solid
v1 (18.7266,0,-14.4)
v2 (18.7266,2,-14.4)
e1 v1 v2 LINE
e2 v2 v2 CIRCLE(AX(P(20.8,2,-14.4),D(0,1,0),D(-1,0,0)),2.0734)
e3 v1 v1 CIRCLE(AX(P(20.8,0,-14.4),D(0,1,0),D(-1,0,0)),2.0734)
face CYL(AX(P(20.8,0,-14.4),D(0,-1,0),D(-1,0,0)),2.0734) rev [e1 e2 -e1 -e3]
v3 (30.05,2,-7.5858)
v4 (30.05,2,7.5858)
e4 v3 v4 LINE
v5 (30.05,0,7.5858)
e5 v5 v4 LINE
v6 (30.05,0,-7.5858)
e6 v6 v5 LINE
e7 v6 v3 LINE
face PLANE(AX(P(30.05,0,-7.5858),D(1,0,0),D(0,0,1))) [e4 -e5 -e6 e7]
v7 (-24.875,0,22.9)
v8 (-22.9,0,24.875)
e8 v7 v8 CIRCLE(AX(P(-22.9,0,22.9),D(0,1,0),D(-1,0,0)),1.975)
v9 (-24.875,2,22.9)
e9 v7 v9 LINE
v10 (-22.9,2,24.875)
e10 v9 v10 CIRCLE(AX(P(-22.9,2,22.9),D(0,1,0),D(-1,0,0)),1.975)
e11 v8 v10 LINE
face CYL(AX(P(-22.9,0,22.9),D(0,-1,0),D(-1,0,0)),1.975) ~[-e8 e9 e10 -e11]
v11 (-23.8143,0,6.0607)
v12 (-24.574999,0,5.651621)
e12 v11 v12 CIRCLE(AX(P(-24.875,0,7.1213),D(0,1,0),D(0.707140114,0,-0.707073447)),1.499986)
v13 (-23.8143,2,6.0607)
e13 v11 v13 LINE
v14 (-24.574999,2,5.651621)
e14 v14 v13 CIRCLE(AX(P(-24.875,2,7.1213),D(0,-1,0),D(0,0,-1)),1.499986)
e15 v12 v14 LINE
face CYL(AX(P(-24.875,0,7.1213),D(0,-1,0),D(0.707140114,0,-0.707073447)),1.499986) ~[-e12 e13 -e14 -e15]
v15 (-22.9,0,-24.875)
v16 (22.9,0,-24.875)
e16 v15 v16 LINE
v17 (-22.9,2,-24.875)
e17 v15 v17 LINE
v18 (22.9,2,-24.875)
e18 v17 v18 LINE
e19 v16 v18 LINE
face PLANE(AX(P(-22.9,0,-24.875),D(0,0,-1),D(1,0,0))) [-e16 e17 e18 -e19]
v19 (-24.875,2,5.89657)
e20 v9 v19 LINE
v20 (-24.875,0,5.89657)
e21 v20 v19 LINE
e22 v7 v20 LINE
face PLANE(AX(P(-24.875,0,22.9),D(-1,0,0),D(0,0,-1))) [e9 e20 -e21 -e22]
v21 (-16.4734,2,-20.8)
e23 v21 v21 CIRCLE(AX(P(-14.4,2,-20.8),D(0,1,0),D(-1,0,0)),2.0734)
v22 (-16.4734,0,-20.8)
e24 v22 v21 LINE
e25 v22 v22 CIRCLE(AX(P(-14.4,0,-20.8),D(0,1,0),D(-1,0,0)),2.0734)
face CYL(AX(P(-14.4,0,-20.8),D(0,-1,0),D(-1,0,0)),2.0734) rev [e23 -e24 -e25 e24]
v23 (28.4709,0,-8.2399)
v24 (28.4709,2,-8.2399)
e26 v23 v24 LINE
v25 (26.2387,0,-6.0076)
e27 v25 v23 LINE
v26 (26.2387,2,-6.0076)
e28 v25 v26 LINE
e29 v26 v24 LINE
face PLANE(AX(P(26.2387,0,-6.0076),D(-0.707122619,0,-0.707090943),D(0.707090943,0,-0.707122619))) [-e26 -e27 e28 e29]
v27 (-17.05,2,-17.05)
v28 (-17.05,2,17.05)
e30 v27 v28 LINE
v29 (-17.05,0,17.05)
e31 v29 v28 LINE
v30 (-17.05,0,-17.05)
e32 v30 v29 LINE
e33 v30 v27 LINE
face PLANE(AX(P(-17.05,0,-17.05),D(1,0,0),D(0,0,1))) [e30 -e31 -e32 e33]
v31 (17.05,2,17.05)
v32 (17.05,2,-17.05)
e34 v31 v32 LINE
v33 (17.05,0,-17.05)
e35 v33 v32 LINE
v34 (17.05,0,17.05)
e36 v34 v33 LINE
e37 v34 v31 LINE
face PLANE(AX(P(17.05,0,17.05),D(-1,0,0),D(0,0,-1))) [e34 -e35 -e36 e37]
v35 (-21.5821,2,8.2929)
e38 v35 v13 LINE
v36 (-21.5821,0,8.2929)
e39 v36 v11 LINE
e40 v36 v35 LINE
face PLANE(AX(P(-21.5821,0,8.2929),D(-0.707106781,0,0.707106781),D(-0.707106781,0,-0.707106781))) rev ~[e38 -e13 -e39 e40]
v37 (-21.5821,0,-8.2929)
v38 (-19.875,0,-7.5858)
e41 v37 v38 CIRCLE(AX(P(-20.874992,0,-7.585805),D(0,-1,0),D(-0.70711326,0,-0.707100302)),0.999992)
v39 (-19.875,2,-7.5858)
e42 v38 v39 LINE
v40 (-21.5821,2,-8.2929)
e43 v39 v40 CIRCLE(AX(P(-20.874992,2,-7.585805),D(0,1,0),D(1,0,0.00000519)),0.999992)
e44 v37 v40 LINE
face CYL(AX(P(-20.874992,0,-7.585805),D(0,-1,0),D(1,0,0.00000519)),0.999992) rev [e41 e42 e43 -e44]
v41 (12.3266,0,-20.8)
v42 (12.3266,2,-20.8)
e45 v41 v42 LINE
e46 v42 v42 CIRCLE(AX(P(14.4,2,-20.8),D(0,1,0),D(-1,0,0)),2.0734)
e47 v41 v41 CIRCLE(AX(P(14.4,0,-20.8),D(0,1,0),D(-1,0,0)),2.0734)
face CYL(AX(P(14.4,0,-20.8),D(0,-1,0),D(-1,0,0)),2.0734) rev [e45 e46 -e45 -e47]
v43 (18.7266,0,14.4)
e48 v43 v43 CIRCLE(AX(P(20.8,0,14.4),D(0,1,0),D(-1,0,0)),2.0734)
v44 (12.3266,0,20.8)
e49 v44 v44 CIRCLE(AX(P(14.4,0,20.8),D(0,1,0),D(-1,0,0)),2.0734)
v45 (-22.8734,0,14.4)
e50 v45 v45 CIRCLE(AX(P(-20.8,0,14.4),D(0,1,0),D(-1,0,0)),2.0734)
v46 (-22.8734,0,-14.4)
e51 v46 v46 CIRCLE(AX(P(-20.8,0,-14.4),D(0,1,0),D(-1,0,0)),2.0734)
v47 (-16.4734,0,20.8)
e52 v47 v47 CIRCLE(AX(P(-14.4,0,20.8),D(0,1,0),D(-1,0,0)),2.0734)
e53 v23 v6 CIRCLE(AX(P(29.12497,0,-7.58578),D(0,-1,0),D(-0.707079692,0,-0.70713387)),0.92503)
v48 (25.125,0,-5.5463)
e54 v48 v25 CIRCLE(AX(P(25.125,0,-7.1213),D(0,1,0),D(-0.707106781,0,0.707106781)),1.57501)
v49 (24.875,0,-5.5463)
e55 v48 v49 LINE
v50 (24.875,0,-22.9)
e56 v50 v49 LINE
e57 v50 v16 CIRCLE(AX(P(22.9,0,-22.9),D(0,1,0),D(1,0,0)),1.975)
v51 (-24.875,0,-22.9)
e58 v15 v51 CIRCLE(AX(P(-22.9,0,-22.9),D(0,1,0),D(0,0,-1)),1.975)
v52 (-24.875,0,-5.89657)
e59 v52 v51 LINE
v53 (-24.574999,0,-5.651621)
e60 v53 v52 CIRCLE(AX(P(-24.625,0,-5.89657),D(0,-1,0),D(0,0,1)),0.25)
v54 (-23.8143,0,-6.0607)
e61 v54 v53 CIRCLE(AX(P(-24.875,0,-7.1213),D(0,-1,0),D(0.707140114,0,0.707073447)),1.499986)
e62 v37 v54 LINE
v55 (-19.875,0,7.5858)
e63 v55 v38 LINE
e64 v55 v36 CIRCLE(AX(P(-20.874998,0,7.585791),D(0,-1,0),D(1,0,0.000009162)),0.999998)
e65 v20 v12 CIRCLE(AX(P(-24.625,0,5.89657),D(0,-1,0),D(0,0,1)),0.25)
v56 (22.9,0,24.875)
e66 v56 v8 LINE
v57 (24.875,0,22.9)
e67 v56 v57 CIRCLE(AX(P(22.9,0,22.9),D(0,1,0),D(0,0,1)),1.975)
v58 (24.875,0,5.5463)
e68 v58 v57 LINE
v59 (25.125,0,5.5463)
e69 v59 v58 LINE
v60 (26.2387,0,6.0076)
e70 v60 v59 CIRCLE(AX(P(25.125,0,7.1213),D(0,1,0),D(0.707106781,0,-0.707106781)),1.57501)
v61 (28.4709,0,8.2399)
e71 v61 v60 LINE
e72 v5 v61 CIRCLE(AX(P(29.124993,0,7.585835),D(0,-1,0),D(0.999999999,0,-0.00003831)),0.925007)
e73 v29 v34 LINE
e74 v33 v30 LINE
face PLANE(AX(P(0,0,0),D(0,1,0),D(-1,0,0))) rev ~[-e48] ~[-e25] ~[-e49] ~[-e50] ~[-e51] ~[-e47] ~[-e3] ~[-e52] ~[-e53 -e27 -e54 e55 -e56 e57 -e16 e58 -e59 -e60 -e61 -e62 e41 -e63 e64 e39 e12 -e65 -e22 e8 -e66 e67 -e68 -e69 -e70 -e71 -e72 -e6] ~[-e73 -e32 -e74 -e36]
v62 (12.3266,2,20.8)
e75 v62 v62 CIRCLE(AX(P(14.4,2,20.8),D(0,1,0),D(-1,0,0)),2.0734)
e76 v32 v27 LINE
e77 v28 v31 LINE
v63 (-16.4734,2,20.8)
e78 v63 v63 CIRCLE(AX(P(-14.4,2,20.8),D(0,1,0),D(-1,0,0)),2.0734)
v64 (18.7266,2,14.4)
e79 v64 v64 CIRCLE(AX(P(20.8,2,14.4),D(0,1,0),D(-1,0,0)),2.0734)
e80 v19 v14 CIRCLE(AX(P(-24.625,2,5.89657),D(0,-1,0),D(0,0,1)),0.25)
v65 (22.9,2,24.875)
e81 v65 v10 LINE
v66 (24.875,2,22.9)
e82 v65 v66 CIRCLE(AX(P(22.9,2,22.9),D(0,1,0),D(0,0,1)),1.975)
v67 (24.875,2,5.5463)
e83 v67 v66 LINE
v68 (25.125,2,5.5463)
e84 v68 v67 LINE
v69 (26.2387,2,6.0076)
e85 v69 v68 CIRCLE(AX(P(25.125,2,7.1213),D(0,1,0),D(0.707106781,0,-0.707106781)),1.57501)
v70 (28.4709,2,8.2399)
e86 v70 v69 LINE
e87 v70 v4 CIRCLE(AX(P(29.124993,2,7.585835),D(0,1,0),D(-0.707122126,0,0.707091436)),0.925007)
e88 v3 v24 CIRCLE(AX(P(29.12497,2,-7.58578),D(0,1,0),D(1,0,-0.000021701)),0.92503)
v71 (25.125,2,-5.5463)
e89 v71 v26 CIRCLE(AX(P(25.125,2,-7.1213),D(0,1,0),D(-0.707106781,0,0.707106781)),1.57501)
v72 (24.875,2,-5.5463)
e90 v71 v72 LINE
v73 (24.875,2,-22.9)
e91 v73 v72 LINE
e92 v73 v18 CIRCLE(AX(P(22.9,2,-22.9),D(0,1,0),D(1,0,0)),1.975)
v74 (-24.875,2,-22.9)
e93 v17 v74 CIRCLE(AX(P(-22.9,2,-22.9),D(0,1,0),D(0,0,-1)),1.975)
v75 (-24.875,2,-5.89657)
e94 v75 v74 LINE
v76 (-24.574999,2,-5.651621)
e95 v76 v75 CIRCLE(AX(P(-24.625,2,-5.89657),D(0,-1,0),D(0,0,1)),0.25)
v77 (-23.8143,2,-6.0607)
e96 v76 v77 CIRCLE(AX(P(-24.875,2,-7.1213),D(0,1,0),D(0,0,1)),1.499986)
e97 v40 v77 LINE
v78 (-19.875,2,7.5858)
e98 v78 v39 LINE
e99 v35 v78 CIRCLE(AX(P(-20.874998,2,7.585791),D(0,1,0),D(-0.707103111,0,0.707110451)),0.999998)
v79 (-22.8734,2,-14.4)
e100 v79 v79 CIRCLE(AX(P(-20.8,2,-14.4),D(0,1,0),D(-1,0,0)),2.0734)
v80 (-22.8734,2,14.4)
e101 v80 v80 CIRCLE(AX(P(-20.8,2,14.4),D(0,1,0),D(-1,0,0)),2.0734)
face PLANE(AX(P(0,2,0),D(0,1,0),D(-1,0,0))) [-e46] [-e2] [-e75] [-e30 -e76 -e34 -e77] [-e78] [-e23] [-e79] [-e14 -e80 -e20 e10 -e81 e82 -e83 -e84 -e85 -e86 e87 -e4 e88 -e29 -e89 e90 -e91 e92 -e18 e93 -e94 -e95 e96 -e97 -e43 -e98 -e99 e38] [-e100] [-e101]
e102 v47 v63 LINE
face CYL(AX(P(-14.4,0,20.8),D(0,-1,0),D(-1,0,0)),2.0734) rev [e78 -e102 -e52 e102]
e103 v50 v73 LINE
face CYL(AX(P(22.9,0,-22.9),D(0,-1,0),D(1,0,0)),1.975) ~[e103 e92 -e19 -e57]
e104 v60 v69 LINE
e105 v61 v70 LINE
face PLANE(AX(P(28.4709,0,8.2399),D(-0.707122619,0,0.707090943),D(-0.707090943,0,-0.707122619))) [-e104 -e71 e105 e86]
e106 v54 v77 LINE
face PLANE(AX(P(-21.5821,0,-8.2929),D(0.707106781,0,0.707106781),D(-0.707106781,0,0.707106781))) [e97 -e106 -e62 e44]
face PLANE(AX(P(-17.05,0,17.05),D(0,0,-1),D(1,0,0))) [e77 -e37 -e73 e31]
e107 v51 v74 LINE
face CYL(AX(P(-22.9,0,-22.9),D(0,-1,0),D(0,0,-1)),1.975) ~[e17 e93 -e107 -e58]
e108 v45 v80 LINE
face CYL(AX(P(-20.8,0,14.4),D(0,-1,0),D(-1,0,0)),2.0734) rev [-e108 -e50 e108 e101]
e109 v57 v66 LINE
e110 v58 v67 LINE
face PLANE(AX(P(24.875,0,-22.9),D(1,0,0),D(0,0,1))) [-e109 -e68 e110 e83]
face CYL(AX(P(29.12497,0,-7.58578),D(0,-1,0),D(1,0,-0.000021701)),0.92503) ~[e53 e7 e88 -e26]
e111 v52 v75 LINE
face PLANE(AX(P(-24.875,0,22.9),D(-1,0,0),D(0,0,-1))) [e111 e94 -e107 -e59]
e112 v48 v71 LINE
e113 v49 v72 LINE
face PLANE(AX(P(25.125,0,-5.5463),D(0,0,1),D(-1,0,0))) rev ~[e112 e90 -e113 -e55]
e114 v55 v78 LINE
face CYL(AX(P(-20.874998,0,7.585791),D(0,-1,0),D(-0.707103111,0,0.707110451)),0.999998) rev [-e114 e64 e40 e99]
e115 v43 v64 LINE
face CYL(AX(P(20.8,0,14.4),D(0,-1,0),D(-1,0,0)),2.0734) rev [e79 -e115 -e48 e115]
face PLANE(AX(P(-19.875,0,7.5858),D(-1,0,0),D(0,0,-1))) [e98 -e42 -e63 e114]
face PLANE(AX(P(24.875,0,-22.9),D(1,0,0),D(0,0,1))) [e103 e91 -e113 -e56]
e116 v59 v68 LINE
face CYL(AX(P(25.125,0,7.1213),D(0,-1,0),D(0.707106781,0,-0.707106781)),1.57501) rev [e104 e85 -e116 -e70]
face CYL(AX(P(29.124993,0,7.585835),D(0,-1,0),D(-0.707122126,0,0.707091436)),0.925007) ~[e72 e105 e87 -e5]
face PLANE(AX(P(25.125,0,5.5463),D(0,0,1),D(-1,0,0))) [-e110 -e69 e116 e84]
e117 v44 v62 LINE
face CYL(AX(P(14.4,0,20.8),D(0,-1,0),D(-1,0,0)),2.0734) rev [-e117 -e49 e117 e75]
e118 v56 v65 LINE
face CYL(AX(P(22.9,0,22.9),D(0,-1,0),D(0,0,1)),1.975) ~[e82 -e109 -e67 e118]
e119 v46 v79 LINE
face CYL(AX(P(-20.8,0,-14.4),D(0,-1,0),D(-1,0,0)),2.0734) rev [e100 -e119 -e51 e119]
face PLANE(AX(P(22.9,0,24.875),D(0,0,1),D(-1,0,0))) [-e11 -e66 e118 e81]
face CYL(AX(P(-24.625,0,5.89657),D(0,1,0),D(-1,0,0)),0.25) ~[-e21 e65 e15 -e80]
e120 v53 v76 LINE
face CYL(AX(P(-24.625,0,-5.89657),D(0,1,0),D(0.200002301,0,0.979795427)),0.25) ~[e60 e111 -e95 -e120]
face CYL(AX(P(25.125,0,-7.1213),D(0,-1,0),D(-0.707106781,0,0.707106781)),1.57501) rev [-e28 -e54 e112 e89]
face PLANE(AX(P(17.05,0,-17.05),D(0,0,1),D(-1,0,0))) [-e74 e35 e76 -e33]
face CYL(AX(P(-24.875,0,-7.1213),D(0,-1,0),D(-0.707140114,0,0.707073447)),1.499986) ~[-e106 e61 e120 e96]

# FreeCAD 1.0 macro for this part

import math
import FreeCAD as App
import Part
import Sketcher
from FreeCAD import Vector


def edges_at(feature, points):
    """Names of the edges that pass closest to the given points."""
    edges = feature.Shape.Edges
    near = lambda p: min(range(len(edges)), key=lambda i: edges[i].distToShape(Part.Vertex(*p))[0])
    return sorted({f"Edge{near(p) + 1}" for p in points})

doc = App.newDocument("Part")
body = doc.addObject("PartDesign::Body", "Body")

sketch1 = body.newObject("Sketcher::SketchObject", "Sketch")
sketch1.AttachmentSupport = (doc.getObject("XZ_Plane"), [""])
sketch1.MapMode = "FlatFace"
sketch1.addGeometry(Part.LineSegment(Vector(-22.9, 24.9, 0), Vector(22.9, 24.9, 0)), False)
sketch1.addGeometry(Part.ArcOfCircle(Part.Circle(Vector(22.9, 22.9, 0), Vector(0, 0, 1), 2), math.radians(0), math.radians(90)), False)
sketch1.addGeometry(Part.LineSegment(Vector(24.9, 22.9, 0), Vector(24.9, -22.9, 0)), False)
sketch1.addGeometry(Part.ArcOfCircle(Part.Circle(Vector(22.9, -22.9, 0), Vector(0, 0, 1), 2), math.radians(-90), math.radians(0)), False)
sketch1.addGeometry(Part.LineSegment(Vector(22.9, -24.9, 0), Vector(-22.9, -24.9, 0)), False)
sketch1.addGeometry(Part.ArcOfCircle(Part.Circle(Vector(-22.9, -22.9, 0), Vector(0, 0, 1), 2), math.radians(180), math.radians(270)), False)
sketch1.addGeometry(Part.LineSegment(Vector(-24.9, -22.9, 0), Vector(-24.9, 22.9, 0)), False)
sketch1.addGeometry(Part.ArcOfCircle(Part.Circle(Vector(-22.9, 22.9, 0), Vector(0, 0, 1), 2), math.radians(90), math.radians(180)), False)
sketch1.addGeometry(Part.Circle(Vector(14.4, -20.8, 0), Vector(0, 0, 1), 2.1), False)
sketch1.addGeometry(Part.Circle(Vector(20.8, -14.4, 0), Vector(0, 0, 1), 2.1), False)
sketch1.addGeometry(Part.LineSegment(Vector(17.1, -17.1, 0), Vector(17.1, 17.1, 0)), False)
sketch1.addGeometry(Part.LineSegment(Vector(17.1, 17.1, 0), Vector(-17.1, 17.1, 0)), False)
sketch1.addGeometry(Part.LineSegment(Vector(-17.1, 17.1, 0), Vector(-17.1, -17.1, 0)), False)
sketch1.addGeometry(Part.LineSegment(Vector(-17.1, -17.1, 0), Vector(17.1, -17.1, 0)), False)
sketch1.addGeometry(Part.Circle(Vector(-14.4, -20.8, 0), Vector(0, 0, 1), 2.1), False)
sketch1.addGeometry(Part.Circle(Vector(-20.8, -14.4, 0), Vector(0, 0, 1), 2.1), False)
sketch1.addGeometry(Part.Circle(Vector(20.8, 14.4, 0), Vector(0, 0, 1), 2.1), False)
sketch1.addGeometry(Part.Circle(Vector(14.4, 20.8, 0), Vector(0, 0, 1), 2.1), False)
sketch1.addGeometry(Part.Circle(Vector(-20.8, 14.4, 0), Vector(0, 0, 1), 2.1), False)
sketch1.addGeometry(Part.Circle(Vector(-14.4, 20.8, 0), Vector(0, 0, 1), 2.1), False)
sketch1.addConstraint(Sketcher.Constraint("Tangent", 0, 2, 1, 2))
sketch1.addConstraint(Sketcher.Constraint("Tangent", 1, 1, 2, 1))
sketch1.addConstraint(Sketcher.Constraint("Tangent", 2, 2, 3, 2))
sketch1.addConstraint(Sketcher.Constraint("Tangent", 3, 1, 4, 1))
sketch1.addConstraint(Sketcher.Constraint("Tangent", 4, 2, 5, 2))
sketch1.addConstraint(Sketcher.Constraint("Tangent", 5, 1, 6, 1))
sketch1.addConstraint(Sketcher.Constraint("Tangent", 6, 2, 7, 2))
sketch1.addConstraint(Sketcher.Constraint("Tangent", 7, 1, 0, 1))
sketch1.addConstraint(Sketcher.Constraint("Coincident", 10, 2, 11, 1))
sketch1.addConstraint(Sketcher.Constraint("Coincident", 11, 2, 12, 1))
sketch1.addConstraint(Sketcher.Constraint("Coincident", 12, 2, 13, 1))
sketch1.addConstraint(Sketcher.Constraint("Coincident", 13, 2, 10, 1))
sketch1.addConstraint(Sketcher.Constraint("Horizontal", 0))
sketch1.addConstraint(Sketcher.Constraint("Vertical", 2))
sketch1.addConstraint(Sketcher.Constraint("Horizontal", 4))
sketch1.addConstraint(Sketcher.Constraint("Vertical", 6))
sketch1.addConstraint(Sketcher.Constraint("Vertical", 10))
sketch1.addConstraint(Sketcher.Constraint("Horizontal", 11))
sketch1.addConstraint(Sketcher.Constraint("Vertical", 12))
sketch1.addConstraint(Sketcher.Constraint("Horizontal", 13))
sketch1.addConstraint(Sketcher.Constraint("Equal", 1, 3))
sketch1.addConstraint(Sketcher.Constraint("Equal", 3, 5))
sketch1.addConstraint(Sketcher.Constraint("Equal", 5, 7))
sketch1.addConstraint(Sketcher.Constraint("Equal", 8, 9))
sketch1.addConstraint(Sketcher.Constraint("Equal", 9, 14))
sketch1.addConstraint(Sketcher.Constraint("Equal", 14, 15))
sketch1.addConstraint(Sketcher.Constraint("Equal", 15, 16))
sketch1.addConstraint(Sketcher.Constraint("Equal", 16, 17))
sketch1.addConstraint(Sketcher.Constraint("Equal", 17, 18))
sketch1.addConstraint(Sketcher.Constraint("Equal", 18, 19))
sketch1.addConstraint(Sketcher.Constraint("Symmetric", 1, 3, 5, 3, -1, 1))
sketch1.addConstraint(Sketcher.Constraint("Symmetric", 15, 3, 16, 3, -1, 1))
sketch1.addConstraint(Sketcher.Constraint("Symmetric", 14, 3, 17, 3, -1, 1))
sketch1.addConstraint(Sketcher.Constraint("Symmetric", 9, 3, 18, 3, -1, 1))
sketch1.addConstraint(Sketcher.Constraint("Symmetric", 8, 3, 19, 3, -1, 1))
sketch1.addConstraint(Sketcher.Constraint("Symmetric", 10, 2, 12, 2, -1, 1))
sketch1.addConstraint(Sketcher.Constraint("Symmetric", 8, 3, 14, 3, -2))
sketch1.addConstraint(Sketcher.Constraint("Symmetric", 9, 3, 15, 3, -2))
sketch1.addConstraint(Sketcher.Constraint("Equal", 4, 2))
sketch1.addConstraint(Sketcher.Constraint("Equal", 13, 10))
sketch1.addConstraint(Sketcher.Constraint("DistanceX", 0, 1, 0, 2, 45.8))
sketch1.addConstraint(Sketcher.Constraint("DistanceX", 11, 2, 11, 1, 34.1))
sketch1.addConstraint(Sketcher.Constraint("Radius", 1, 1.975))
sketch1.addConstraint(Sketcher.Constraint("Diameter", 8, 4.1468))
sketch1.addConstraint(Sketcher.Constraint("DistanceX", -1, 1, 8, 3, 14.4))
sketch1.addConstraint(Sketcher.Constraint("DistanceY", 8, 3, -1, 1, 20.8))
sketch1.addConstraint(Sketcher.Constraint("DistanceX", -1, 1, 9, 3, 20.8))
sketch1.addConstraint(Sketcher.Constraint("DistanceY", 9, 3, -1, 1, 14.4))
pad1 = body.newObject("PartDesign::Pad", "Pad")
pad1.Profile = sketch1
pad1.Length = 2
pad1.Reversed = True

sketch2 = body.newObject("Sketcher::SketchObject", "Sketch001")
sketch2.AttachmentSupport = (doc.getObject("XZ_Plane"), [""])
sketch2.MapMode = "FlatFace"
sketch2.addGeometry(Part.LineSegment(Vector(25.12, -5.55, 0), Vector(24.88, -5.55, 0)), False)
sketch2.addGeometry(Part.LineSegment(Vector(24.88, -5.55, 0), Vector(24.88, 5.55, 0)), False)
sketch2.addGeometry(Part.LineSegment(Vector(24.88, 5.55, 0), Vector(25.12, 5.55, 0)), False)
sketch2.addGeometry(Part.ArcOfCircle(Part.Circle(Vector(25.12, 7.12, 0), Vector(0, 0, 1), 1.58), math.radians(-90), math.radians(-45)), False)
sketch2.addGeometry(Part.LineSegment(Vector(26.24, 6.01, 0), Vector(28.47, 8.24, 0)), False)
sketch2.addGeometry(Part.ArcOfCircle(Part.Circle(Vector(29.12, 7.59, 0), Vector(0, 0, 1), 0.93), math.radians(0), math.radians(135)), False)
sketch2.addGeometry(Part.LineSegment(Vector(30.05, 7.59, 0), Vector(30.05, -7.59, 0)), False)
sketch2.addGeometry(Part.ArcOfCircle(Part.Circle(Vector(29.12, -7.59, 0), Vector(0, 0, 1), 0.93), math.radians(-135), math.radians(0)), False)
sketch2.addGeometry(Part.LineSegment(Vector(28.47, -8.24, 0), Vector(26.24, -6.01, 0)), False)
sketch2.addGeometry(Part.ArcOfCircle(Part.Circle(Vector(25.12, -7.12, 0), Vector(0, 0, 1), 1.58), math.radians(45), math.radians(90)), False)
sketch2.addConstraint(Sketcher.Constraint("Coincident", 0, 2, 1, 1))
sketch2.addConstraint(Sketcher.Constraint("Coincident", 1, 2, 2, 1))
sketch2.addConstraint(Sketcher.Constraint("Tangent", 2, 2, 3, 1))
sketch2.addConstraint(Sketcher.Constraint("Tangent", 3, 2, 4, 1))
sketch2.addConstraint(Sketcher.Constraint("Tangent", 4, 2, 5, 2))
sketch2.addConstraint(Sketcher.Constraint("Tangent", 5, 1, 6, 1))
sketch2.addConstraint(Sketcher.Constraint("Tangent", 6, 2, 7, 2))
sketch2.addConstraint(Sketcher.Constraint("Tangent", 7, 1, 8, 1))
sketch2.addConstraint(Sketcher.Constraint("Tangent", 8, 2, 9, 1))
sketch2.addConstraint(Sketcher.Constraint("Tangent", 9, 2, 0, 1))
sketch2.addConstraint(Sketcher.Constraint("Horizontal", 0))
sketch2.addConstraint(Sketcher.Constraint("Vertical", 1))
sketch2.addConstraint(Sketcher.Constraint("Horizontal", 2))
sketch2.addConstraint(Sketcher.Constraint("Vertical", 6))
sketch2.addConstraint(Sketcher.Constraint("Equal", 5, 7))
sketch2.addConstraint(Sketcher.Constraint("Equal", 3, 9))
sketch2.addConstraint(Sketcher.Constraint("Symmetric", 3, 3, 9, 3, -1))
sketch2.addConstraint(Sketcher.Constraint("Perpendicular", 4, 8))
sketch2.addConstraint(Sketcher.Constraint("Vertical", 4, 2, 7, 1))
sketch2.addConstraint(Sketcher.Constraint("DistanceX", 0, 2, 0, 1, 0.25))
sketch2.addConstraint(Sketcher.Constraint("DistanceY", 6, 2, 6, 1, 15.1716))
sketch2.addConstraint(Sketcher.Constraint("Radius", 3, 1.575))
sketch2.addConstraint(Sketcher.Constraint("Radius", 5, 0.925))
sketch2.addConstraint(Sketcher.Constraint("DistanceX", 3, 3, 5, 3, 4.0))
sketch2.addConstraint(Sketcher.Constraint("DistanceX", -1, 1, 5, 1, 30.05))
pad2 = body.newObject("PartDesign::Pad", "Pad001")
pad2.Profile = sketch2
pad2.Length = 2
pad2.Reversed = True

sketch3 = body.newObject("Sketcher::SketchObject", "Sketch002")
sketch3.AttachmentSupport = (doc.getObject("XZ_Plane"), [""])
sketch3.MapMode = "FlatFace"
sketch3.addGeometry(Part.LineSegment(Vector(-24.9, -5.6, 0), Vector(-24.9, 5.6, 0)), False)
sketch3.addGeometry(Part.ArcOfCircle(Part.Circle(Vector(-24.9, 7.1, 0), Vector(0, 0, 1), 1.5), math.radians(-90), math.radians(-45)), False)
sketch3.addGeometry(Part.LineSegment(Vector(-23.8, 6.1, 0), Vector(-21.6, 8.3, 0)), False)
sketch3.addGeometry(Part.ArcOfCircle(Part.Circle(Vector(-20.9, 7.6, 0), Vector(0, 0, 1), 1), math.radians(0), math.radians(135)), False)
sketch3.addGeometry(Part.LineSegment(Vector(-19.9, 7.6, 0), Vector(-19.9, -7.6, 0)), False)
sketch3.addGeometry(Part.ArcOfCircle(Part.Circle(Vector(-20.9, -7.6, 0), Vector(0, 0, 1), 1), math.radians(-135), math.radians(0)), False)
sketch3.addGeometry(Part.LineSegment(Vector(-21.6, -8.3, 0), Vector(-23.8, -6.1, 0)), False)
sketch3.addGeometry(Part.ArcOfCircle(Part.Circle(Vector(-24.9, -7.1, 0), Vector(0, 0, 1), 1.5), math.radians(45), math.radians(90)), False)
sketch3.addConstraint(Sketcher.Constraint("Coincident", 0, 2, 1, 1))
sketch3.addConstraint(Sketcher.Constraint("Tangent", 1, 2, 2, 1))
sketch3.addConstraint(Sketcher.Constraint("Tangent", 2, 2, 3, 2))
sketch3.addConstraint(Sketcher.Constraint("Tangent", 3, 1, 4, 1))
sketch3.addConstraint(Sketcher.Constraint("Tangent", 4, 2, 5, 2))
sketch3.addConstraint(Sketcher.Constraint("Tangent", 5, 1, 6, 1))
sketch3.addConstraint(Sketcher.Constraint("Tangent", 6, 2, 7, 1))
sketch3.addConstraint(Sketcher.Constraint("Coincident", 7, 2, 0, 1))
sketch3.addConstraint(Sketcher.Constraint("Vertical", 0))
sketch3.addConstraint(Sketcher.Constraint("Vertical", 4))
sketch3.addConstraint(Sketcher.Constraint("Equal", 3, 5))
sketch3.addConstraint(Sketcher.Constraint("Equal", 1, 7))
sketch3.addConstraint(Sketcher.Constraint("Symmetric", 1, 3, 7, 3, -1))
sketch3.addConstraint(Sketcher.Constraint("Perpendicular", 2, 6))
sketch3.addConstraint(Sketcher.Constraint("Vertical", 7, 3, 0, 2))
sketch3.addConstraint(Sketcher.Constraint("Vertical", 2, 2, 5, 1))
sketch3.addConstraint(Sketcher.Constraint("Radius", 3, 1.0))
sketch3.addConstraint(Sketcher.Constraint("Radius", 1, 1.5))
sketch3.addConstraint(Sketcher.Constraint("DistanceY", 4, 2, 4, 1, 15.1716))
sketch3.addConstraint(Sketcher.Constraint("DistanceX", 1, 3, 3, 3, 4.0))
sketch3.addConstraint(Sketcher.Constraint("DistanceX", 1, 3, -1, 1, 24.875))
pocket1 = body.newObject("PartDesign::Pocket", "Pocket")
pocket1.Profile = sketch3
pocket1.Length = 2
doc.recompute()

fillet = body.newObject("PartDesign::Fillet", "Fillet")
fillet.Base = (pocket1, edges_at(pocket1, [(-24.875, 1, -5.621), (-24.875, 1, 5.621)]))
fillet.Radius = 0.25

doc.recompute()
